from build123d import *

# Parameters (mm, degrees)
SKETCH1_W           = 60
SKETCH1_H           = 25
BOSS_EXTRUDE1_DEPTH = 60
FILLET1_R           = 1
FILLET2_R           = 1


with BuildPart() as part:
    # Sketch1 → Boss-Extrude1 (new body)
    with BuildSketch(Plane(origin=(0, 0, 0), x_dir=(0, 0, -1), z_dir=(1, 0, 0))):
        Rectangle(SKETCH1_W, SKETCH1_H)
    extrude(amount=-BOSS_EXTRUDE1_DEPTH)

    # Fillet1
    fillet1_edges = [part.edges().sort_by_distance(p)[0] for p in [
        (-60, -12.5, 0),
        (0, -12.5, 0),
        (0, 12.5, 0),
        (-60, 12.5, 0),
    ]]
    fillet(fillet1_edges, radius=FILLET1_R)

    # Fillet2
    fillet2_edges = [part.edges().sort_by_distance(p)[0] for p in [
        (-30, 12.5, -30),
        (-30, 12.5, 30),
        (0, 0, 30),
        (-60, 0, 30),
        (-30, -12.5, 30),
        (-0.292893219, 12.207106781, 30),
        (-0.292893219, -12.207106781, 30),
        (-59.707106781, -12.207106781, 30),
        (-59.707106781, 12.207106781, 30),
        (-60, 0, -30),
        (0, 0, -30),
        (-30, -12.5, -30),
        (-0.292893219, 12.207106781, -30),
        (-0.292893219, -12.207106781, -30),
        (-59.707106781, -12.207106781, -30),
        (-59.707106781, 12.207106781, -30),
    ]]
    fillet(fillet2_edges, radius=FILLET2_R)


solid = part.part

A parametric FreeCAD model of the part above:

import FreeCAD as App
import Part
import Sketcher
Q = App.Units.Quantity


def edges_at(feature, points):
    """Names of the edges that pass closest to the given points."""
    edges = feature.Shape.Edges
    near = lambda p: min(range(len(edges)), key=lambda i: edges[i].distToShape(Part.Vertex(*p))[0])
    return sorted({f"Edge{near(p) + 1}" for p in points})

doc = App.newDocument("Part")
body = doc.addObject("PartDesign::Body", "Body")

sketch1 = body.newObject("Sketcher::SketchObject", "Sketch")
sketch1.AttachmentSupport = (doc.getObject("YZ_Plane"), [""])
sketch1.MapMode = "FlatFace"
sketch1.addGeometry(Part.LineSegment(App.Vector(12, 30, 0), App.Vector(-12, 30, 0)), False)
sketch1.addGeometry(Part.LineSegment(App.Vector(-12, 30, 0), App.Vector(-12, -30, 0)), False)
sketch1.addGeometry(Part.LineSegment(App.Vector(-12, -30, 0), App.Vector(12, -30, 0)), False)
sketch1.addGeometry(Part.LineSegment(App.Vector(12, -30, 0), App.Vector(12, 30, 0)), False)
sketch1.addConstraint(Sketcher.Constraint("Coincident", 0, 2, 1, 1))
sketch1.addConstraint(Sketcher.Constraint("Coincident", 1, 2, 2, 1))
sketch1.addConstraint(Sketcher.Constraint("Coincident", 2, 2, 3, 1))
sketch1.addConstraint(Sketcher.Constraint("Coincident", 3, 2, 0, 1))
sketch1.addConstraint(Sketcher.Constraint("Horizontal", 0))
sketch1.addConstraint(Sketcher.Constraint("Vertical", 1))
sketch1.addConstraint(Sketcher.Constraint("Horizontal", 2))
sketch1.addConstraint(Sketcher.Constraint("Vertical", 3))
sketch1.addConstraint(Sketcher.Constraint("Symmetric", 0, 2, 2, 2, -1, 1))
sketch1.addConstraint(Sketcher.Constraint("DistanceX", 0, 2, 0, 1, Q("25 mm")))
sketch1.addConstraint(Sketcher.Constraint("DistanceY", 1, 2, 1, 1, Q("60 mm")))
pad1 = body.newObject("PartDesign::Pad", "Pad")
pad1.Profile = sketch1
pad1.Length = 60
pad1.Reversed = True
doc.recompute()

fillet = body.newObject("PartDesign::Fillet", "Fillet")
fillet.Base = (pad1, edges_at(pad1, [
    (-60, -12.5, 0),
    (0, -12.5, 0),
    (0, 12.5, 0),
    (-60, 12.5, 0),
]))
fillet.Radius = 1
doc.recompute()

fillet2 = body.newObject("PartDesign::Fillet", "Fillet001")
fillet2.Base = (fillet, edges_at(fillet, [
    (-30, 12.5, -30),
    (-30, 12.5, 30),
    (0, 0, 30),
    (-60, 0, 30),
    (-30, -12.5, 30),
    (-0.293, 12.207, 30),
    (-0.293, -12.207, 30),
    (-59.707, -12.207, 30),
    (-59.707, 12.207, 30),
    (-60, 0, -30),
    (0, 0, -30),
    (-30, -12.5, -30),
    (-0.293, 12.207, -30),
    (-0.293, -12.207, -30),
    (-59.707, -12.207, -30),
    (-59.707, 12.207, -30),
]))
fillet2.Radius = 1

doc.recompute()
